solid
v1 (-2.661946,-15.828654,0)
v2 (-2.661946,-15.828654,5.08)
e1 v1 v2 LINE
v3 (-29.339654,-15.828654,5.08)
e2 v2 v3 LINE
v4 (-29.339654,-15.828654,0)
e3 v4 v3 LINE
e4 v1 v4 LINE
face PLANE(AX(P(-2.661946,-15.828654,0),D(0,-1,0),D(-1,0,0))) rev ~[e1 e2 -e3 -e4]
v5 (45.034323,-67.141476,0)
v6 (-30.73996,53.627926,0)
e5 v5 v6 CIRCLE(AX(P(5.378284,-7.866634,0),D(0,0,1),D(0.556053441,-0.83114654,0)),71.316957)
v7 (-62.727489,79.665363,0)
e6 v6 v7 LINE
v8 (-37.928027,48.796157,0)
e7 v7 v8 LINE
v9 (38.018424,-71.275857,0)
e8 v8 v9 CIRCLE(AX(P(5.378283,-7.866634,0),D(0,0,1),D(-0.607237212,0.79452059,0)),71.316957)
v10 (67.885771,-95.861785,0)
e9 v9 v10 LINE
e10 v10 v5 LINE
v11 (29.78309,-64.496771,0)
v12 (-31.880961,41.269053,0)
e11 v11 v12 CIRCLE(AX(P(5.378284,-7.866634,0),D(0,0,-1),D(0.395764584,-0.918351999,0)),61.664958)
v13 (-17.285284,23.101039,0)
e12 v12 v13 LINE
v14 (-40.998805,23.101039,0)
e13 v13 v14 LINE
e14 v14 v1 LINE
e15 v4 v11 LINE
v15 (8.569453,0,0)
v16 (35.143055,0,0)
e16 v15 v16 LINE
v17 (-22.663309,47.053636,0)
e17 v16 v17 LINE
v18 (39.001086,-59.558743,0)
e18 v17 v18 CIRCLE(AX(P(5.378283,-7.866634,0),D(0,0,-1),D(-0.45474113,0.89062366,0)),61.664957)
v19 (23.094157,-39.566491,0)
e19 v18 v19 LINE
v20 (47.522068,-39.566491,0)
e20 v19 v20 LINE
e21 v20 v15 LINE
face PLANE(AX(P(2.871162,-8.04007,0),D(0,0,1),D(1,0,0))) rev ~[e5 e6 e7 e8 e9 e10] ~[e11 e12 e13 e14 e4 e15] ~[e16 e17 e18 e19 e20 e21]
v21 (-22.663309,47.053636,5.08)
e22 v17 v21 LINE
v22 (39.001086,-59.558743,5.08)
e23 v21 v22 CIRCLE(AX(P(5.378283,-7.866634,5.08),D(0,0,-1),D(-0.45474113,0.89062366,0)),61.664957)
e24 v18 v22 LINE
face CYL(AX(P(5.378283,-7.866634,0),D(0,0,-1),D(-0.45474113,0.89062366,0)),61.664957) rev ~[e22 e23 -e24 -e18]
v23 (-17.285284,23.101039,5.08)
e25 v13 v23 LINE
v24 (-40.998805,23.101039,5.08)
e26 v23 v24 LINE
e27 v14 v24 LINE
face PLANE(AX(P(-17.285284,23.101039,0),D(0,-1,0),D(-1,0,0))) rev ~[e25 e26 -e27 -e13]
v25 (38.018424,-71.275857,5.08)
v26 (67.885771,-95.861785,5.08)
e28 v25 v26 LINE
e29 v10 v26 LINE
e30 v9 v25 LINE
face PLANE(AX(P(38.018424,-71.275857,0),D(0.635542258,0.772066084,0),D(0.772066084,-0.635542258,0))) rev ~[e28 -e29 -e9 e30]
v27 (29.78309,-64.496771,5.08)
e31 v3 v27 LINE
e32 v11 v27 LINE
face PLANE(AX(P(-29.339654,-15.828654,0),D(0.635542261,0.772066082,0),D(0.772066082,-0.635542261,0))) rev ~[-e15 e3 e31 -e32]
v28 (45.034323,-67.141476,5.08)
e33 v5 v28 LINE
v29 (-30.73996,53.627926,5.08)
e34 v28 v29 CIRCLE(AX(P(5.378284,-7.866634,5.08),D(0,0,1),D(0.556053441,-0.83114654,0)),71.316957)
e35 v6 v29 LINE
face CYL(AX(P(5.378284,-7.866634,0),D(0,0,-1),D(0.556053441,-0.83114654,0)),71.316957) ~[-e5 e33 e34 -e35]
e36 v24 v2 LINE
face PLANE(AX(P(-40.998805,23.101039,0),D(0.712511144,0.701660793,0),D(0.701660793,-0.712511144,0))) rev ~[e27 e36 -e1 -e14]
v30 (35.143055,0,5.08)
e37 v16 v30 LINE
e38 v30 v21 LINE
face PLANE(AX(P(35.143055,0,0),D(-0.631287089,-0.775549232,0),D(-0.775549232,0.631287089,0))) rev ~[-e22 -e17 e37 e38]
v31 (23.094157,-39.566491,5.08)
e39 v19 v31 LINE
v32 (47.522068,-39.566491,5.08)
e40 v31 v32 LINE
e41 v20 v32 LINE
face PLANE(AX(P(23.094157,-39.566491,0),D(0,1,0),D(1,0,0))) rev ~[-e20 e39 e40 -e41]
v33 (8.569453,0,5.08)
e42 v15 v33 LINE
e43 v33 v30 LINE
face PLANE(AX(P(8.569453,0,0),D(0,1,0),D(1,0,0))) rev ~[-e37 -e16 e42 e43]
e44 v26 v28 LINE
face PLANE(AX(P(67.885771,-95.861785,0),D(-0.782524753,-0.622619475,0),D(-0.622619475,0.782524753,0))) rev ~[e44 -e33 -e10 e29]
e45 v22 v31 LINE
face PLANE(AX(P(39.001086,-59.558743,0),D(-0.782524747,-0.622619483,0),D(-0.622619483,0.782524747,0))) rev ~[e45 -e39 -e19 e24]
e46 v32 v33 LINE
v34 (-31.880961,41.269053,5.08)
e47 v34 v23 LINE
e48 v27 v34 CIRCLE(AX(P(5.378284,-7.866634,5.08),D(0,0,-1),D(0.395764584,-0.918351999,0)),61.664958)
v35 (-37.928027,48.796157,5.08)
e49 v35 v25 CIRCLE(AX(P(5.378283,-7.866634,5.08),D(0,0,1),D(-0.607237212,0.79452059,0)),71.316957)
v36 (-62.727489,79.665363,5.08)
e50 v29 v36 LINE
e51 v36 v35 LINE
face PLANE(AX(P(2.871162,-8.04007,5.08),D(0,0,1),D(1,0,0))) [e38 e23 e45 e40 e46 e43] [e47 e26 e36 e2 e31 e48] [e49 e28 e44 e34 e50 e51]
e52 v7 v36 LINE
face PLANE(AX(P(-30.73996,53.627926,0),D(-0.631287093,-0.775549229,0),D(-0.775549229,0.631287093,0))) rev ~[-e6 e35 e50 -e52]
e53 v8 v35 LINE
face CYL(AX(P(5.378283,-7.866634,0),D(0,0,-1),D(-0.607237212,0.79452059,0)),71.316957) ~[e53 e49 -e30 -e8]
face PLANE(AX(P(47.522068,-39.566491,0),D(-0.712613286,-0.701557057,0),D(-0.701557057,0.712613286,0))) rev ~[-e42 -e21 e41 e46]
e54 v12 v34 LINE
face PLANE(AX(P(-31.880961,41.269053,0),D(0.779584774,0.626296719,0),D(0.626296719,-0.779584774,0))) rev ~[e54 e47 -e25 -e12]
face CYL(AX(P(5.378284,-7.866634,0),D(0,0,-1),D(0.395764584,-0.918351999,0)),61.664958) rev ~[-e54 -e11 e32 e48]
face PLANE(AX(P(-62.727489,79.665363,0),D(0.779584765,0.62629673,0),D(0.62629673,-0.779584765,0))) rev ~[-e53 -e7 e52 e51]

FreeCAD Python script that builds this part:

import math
import FreeCAD as App
import Part
import Sketcher
Q = App.Units.Quantity

doc = App.newDocument("Part")
body = doc.addObject("PartDesign::Body", "Body")

# Sketch on XY plane
sketch1 = body.newObject("Sketcher::SketchObject", "Sketch")
sketch1.AttachmentSupport = (doc.getObject("XY_Plane"), [""])
sketch1.MapMode = "FlatFace"
sketch1.addGeometry([
    Part.LineSegment(App.Vector(-31, 54, 0), App.Vector(-63, 80, 0)),  # 0
    Part.LineSegment(App.Vector(-63, 80, 0), App.Vector(-38, 49, 0)),  # 1
    Part.ArcOfCircle(Part.Circle(App.Vector(5, -8, 0), App.Vector(0, 0, 1), 71), math.radians(127), math.radians(297)),  # 2
    Part.LineSegment(App.Vector(38, -71, 0), App.Vector(68, -96, 0)),  # 3
    Part.LineSegment(App.Vector(68, -96, 0), App.Vector(45, -67, 0)),  # 4
    Part.ArcOfCircle(Part.Circle(App.Vector(5, -8, 0), App.Vector(0, 0, 1), 71), math.radians(-56), math.radians(120)),  # 5
    Part.LineSegment(App.Vector(39, -60, 0), App.Vector(23, -40, 0)),  # 6
    Part.LineSegment(App.Vector(23, -40, 0), App.Vector(48, -40, 0)),  # 7
    Part.LineSegment(App.Vector(48, -40, 0), App.Vector(9, 0, 0)),  # 8
    Part.LineSegment(App.Vector(9, 0, 0), App.Vector(35, 0, 0)),  # 9
    Part.LineSegment(App.Vector(35, 0, 0), App.Vector(-23, 47, 0)),  # 10
    Part.ArcOfCircle(Part.Circle(App.Vector(5, -8, 0), App.Vector(0, 0, 1), 62), math.radians(-57), math.radians(117)),  # 11
    Part.LineSegment(App.Vector(-32, 41, 0), App.Vector(-17, 23, 0)),  # 12
    Part.LineSegment(App.Vector(-17, 23, 0), App.Vector(-41, 23, 0)),  # 13
    Part.LineSegment(App.Vector(-41, 23, 0), App.Vector(-3, -16, 0)),  # 14
    Part.LineSegment(App.Vector(-3, -16, 0), App.Vector(-29, -16, 0)),  # 15
    Part.LineSegment(App.Vector(-29, -16, 0), App.Vector(30, -64, 0)),  # 16
    Part.ArcOfCircle(Part.Circle(App.Vector(5, -8, 0), App.Vector(0, 0, 1), 62), math.radians(127), math.radians(293)),  # 17
], False)
sketch1.addConstraint([
    Sketcher.Constraint("Coincident", 0, 2, 1, 1),
    Sketcher.Constraint("Coincident", 1, 2, 2, 1),
    Sketcher.Constraint("Coincident", 2, 2, 3, 1),
    Sketcher.Constraint("Coincident", 3, 2, 4, 1),
    Sketcher.Constraint("Coincident", 4, 2, 5, 1),
    Sketcher.Constraint("Coincident", 5, 2, 0, 1),
    Sketcher.Constraint("Coincident", 6, 2, 7, 1),
    Sketcher.Constraint("Coincident", 7, 2, 8, 1),
    Sketcher.Constraint("Coincident", 8, 2, 9, 1),
    Sketcher.Constraint("Coincident", 9, 2, 10, 1),
    Sketcher.Constraint("Coincident", 10, 2, 11, 2),
    Sketcher.Constraint("Coincident", 11, 1, 6, 1),
    Sketcher.Constraint("Coincident", 12, 2, 13, 1),
    Sketcher.Constraint("Coincident", 13, 2, 14, 1),
    Sketcher.Constraint("Coincident", 14, 2, 15, 1),
    Sketcher.Constraint("Coincident", 15, 2, 16, 1),
    Sketcher.Constraint("Coincident", 16, 2, 17, 2),
    Sketcher.Constraint("Coincident", 17, 1, 12, 1),
    Sketcher.Constraint("Horizontal", 7),
    Sketcher.Constraint("Horizontal", 9),
    Sketcher.Constraint("Horizontal", 13),
    Sketcher.Constraint("Horizontal", 15),
    Sketcher.Constraint("Coincident", 5, 3, 2, 3),
    Sketcher.Constraint("Coincident", 11, 3, 2, 3),
    Sketcher.Constraint("Coincident", 17, 3, 2, 3),
    Sketcher.Constraint("Equal", 2, 5),
    Sketcher.Constraint("Equal", 11, 17),
    Sketcher.Constraint("PointOnObject", 8, 2, -1),
    Sketcher.Constraint("Parallel", 4, 6),
    Sketcher.Constraint("Parallel", 0, 10),
    Sketcher.Constraint("Parallel", 1, 12),
    Sketcher.Constraint("Parallel", 3, 16),
    Sketcher.Constraint("DistanceX", 9, 1, 9, 2, Q("26.573602 mm")),
    Sketcher.Constraint("Radius", 2, Q("71.316957 mm")),
    Sketcher.Constraint("Radius", 11, Q("61.664957 mm")),
    Sketcher.Constraint("Distance", 0, Q("41.245001 mm")),
    Sketcher.Constraint("DistanceX", 7, 1, 7, 2, Q("24.427911 mm")),
    Sketcher.Constraint("DistanceX", 13, 2, 13, 1, Q("23.713521 mm")),
    Sketcher.Constraint("DistanceX", 2, 2, 4, 2, Q("7.015899 mm")),
    Sketcher.Constraint("DistanceX", 14, 2, 8, 2, Q("11.231399 mm")),
    Sketcher.Constraint("DistanceX", 17, 1, 5, 2, Q("1.141001 mm")),
    Sketcher.Constraint("Distance", 3, Q("38.684962 mm")),
    Sketcher.Constraint("Distance", 4, Q("36.702109 mm")),
    Sketcher.Constraint("Distance", 8, Q("55.523089 mm")),
    Sketcher.Constraint("Distance", 12, Q("23.304732 mm")),
    Sketcher.Constraint("Distance", 14, Q("54.637311 mm")),
    Sketcher.Constraint("Distance", 16, Q("76.57731 mm")),
    Sketcher.Constraint("DistanceX", 15, 2, 15, 1, Q("26.677708 mm")),
    Sketcher.Constraint("DistanceX", 0, 2, -1, 1, Q("62.727489 mm")),
    Sketcher.Constraint("DistanceX", -1, 1, 3, 2, Q("67.885771 mm")),
    Sketcher.Constraint("DistanceX", 5, 2, -1, 1, Q("30.73996 mm")),
    Sketcher.Constraint("DistanceY", 6, 2, -1, 1, Q("39.566491 mm")),
    Sketcher.Constraint("DistanceX", 10, 2, -1, 1, Q("22.663309 mm")),
    Sketcher.Constraint("DistanceY", -1, 1, 12, 2, Q("23.101039 mm")),
    Sketcher.Constraint("DistanceX", -1, 1, 16, 2, Q("29.78309 mm")),
])
pad1 = body.newObject("PartDesign::Pad", "Pad")
pad1.Profile = sketch1
pad1.Length = Q("0.2 in")

doc.recompute()
